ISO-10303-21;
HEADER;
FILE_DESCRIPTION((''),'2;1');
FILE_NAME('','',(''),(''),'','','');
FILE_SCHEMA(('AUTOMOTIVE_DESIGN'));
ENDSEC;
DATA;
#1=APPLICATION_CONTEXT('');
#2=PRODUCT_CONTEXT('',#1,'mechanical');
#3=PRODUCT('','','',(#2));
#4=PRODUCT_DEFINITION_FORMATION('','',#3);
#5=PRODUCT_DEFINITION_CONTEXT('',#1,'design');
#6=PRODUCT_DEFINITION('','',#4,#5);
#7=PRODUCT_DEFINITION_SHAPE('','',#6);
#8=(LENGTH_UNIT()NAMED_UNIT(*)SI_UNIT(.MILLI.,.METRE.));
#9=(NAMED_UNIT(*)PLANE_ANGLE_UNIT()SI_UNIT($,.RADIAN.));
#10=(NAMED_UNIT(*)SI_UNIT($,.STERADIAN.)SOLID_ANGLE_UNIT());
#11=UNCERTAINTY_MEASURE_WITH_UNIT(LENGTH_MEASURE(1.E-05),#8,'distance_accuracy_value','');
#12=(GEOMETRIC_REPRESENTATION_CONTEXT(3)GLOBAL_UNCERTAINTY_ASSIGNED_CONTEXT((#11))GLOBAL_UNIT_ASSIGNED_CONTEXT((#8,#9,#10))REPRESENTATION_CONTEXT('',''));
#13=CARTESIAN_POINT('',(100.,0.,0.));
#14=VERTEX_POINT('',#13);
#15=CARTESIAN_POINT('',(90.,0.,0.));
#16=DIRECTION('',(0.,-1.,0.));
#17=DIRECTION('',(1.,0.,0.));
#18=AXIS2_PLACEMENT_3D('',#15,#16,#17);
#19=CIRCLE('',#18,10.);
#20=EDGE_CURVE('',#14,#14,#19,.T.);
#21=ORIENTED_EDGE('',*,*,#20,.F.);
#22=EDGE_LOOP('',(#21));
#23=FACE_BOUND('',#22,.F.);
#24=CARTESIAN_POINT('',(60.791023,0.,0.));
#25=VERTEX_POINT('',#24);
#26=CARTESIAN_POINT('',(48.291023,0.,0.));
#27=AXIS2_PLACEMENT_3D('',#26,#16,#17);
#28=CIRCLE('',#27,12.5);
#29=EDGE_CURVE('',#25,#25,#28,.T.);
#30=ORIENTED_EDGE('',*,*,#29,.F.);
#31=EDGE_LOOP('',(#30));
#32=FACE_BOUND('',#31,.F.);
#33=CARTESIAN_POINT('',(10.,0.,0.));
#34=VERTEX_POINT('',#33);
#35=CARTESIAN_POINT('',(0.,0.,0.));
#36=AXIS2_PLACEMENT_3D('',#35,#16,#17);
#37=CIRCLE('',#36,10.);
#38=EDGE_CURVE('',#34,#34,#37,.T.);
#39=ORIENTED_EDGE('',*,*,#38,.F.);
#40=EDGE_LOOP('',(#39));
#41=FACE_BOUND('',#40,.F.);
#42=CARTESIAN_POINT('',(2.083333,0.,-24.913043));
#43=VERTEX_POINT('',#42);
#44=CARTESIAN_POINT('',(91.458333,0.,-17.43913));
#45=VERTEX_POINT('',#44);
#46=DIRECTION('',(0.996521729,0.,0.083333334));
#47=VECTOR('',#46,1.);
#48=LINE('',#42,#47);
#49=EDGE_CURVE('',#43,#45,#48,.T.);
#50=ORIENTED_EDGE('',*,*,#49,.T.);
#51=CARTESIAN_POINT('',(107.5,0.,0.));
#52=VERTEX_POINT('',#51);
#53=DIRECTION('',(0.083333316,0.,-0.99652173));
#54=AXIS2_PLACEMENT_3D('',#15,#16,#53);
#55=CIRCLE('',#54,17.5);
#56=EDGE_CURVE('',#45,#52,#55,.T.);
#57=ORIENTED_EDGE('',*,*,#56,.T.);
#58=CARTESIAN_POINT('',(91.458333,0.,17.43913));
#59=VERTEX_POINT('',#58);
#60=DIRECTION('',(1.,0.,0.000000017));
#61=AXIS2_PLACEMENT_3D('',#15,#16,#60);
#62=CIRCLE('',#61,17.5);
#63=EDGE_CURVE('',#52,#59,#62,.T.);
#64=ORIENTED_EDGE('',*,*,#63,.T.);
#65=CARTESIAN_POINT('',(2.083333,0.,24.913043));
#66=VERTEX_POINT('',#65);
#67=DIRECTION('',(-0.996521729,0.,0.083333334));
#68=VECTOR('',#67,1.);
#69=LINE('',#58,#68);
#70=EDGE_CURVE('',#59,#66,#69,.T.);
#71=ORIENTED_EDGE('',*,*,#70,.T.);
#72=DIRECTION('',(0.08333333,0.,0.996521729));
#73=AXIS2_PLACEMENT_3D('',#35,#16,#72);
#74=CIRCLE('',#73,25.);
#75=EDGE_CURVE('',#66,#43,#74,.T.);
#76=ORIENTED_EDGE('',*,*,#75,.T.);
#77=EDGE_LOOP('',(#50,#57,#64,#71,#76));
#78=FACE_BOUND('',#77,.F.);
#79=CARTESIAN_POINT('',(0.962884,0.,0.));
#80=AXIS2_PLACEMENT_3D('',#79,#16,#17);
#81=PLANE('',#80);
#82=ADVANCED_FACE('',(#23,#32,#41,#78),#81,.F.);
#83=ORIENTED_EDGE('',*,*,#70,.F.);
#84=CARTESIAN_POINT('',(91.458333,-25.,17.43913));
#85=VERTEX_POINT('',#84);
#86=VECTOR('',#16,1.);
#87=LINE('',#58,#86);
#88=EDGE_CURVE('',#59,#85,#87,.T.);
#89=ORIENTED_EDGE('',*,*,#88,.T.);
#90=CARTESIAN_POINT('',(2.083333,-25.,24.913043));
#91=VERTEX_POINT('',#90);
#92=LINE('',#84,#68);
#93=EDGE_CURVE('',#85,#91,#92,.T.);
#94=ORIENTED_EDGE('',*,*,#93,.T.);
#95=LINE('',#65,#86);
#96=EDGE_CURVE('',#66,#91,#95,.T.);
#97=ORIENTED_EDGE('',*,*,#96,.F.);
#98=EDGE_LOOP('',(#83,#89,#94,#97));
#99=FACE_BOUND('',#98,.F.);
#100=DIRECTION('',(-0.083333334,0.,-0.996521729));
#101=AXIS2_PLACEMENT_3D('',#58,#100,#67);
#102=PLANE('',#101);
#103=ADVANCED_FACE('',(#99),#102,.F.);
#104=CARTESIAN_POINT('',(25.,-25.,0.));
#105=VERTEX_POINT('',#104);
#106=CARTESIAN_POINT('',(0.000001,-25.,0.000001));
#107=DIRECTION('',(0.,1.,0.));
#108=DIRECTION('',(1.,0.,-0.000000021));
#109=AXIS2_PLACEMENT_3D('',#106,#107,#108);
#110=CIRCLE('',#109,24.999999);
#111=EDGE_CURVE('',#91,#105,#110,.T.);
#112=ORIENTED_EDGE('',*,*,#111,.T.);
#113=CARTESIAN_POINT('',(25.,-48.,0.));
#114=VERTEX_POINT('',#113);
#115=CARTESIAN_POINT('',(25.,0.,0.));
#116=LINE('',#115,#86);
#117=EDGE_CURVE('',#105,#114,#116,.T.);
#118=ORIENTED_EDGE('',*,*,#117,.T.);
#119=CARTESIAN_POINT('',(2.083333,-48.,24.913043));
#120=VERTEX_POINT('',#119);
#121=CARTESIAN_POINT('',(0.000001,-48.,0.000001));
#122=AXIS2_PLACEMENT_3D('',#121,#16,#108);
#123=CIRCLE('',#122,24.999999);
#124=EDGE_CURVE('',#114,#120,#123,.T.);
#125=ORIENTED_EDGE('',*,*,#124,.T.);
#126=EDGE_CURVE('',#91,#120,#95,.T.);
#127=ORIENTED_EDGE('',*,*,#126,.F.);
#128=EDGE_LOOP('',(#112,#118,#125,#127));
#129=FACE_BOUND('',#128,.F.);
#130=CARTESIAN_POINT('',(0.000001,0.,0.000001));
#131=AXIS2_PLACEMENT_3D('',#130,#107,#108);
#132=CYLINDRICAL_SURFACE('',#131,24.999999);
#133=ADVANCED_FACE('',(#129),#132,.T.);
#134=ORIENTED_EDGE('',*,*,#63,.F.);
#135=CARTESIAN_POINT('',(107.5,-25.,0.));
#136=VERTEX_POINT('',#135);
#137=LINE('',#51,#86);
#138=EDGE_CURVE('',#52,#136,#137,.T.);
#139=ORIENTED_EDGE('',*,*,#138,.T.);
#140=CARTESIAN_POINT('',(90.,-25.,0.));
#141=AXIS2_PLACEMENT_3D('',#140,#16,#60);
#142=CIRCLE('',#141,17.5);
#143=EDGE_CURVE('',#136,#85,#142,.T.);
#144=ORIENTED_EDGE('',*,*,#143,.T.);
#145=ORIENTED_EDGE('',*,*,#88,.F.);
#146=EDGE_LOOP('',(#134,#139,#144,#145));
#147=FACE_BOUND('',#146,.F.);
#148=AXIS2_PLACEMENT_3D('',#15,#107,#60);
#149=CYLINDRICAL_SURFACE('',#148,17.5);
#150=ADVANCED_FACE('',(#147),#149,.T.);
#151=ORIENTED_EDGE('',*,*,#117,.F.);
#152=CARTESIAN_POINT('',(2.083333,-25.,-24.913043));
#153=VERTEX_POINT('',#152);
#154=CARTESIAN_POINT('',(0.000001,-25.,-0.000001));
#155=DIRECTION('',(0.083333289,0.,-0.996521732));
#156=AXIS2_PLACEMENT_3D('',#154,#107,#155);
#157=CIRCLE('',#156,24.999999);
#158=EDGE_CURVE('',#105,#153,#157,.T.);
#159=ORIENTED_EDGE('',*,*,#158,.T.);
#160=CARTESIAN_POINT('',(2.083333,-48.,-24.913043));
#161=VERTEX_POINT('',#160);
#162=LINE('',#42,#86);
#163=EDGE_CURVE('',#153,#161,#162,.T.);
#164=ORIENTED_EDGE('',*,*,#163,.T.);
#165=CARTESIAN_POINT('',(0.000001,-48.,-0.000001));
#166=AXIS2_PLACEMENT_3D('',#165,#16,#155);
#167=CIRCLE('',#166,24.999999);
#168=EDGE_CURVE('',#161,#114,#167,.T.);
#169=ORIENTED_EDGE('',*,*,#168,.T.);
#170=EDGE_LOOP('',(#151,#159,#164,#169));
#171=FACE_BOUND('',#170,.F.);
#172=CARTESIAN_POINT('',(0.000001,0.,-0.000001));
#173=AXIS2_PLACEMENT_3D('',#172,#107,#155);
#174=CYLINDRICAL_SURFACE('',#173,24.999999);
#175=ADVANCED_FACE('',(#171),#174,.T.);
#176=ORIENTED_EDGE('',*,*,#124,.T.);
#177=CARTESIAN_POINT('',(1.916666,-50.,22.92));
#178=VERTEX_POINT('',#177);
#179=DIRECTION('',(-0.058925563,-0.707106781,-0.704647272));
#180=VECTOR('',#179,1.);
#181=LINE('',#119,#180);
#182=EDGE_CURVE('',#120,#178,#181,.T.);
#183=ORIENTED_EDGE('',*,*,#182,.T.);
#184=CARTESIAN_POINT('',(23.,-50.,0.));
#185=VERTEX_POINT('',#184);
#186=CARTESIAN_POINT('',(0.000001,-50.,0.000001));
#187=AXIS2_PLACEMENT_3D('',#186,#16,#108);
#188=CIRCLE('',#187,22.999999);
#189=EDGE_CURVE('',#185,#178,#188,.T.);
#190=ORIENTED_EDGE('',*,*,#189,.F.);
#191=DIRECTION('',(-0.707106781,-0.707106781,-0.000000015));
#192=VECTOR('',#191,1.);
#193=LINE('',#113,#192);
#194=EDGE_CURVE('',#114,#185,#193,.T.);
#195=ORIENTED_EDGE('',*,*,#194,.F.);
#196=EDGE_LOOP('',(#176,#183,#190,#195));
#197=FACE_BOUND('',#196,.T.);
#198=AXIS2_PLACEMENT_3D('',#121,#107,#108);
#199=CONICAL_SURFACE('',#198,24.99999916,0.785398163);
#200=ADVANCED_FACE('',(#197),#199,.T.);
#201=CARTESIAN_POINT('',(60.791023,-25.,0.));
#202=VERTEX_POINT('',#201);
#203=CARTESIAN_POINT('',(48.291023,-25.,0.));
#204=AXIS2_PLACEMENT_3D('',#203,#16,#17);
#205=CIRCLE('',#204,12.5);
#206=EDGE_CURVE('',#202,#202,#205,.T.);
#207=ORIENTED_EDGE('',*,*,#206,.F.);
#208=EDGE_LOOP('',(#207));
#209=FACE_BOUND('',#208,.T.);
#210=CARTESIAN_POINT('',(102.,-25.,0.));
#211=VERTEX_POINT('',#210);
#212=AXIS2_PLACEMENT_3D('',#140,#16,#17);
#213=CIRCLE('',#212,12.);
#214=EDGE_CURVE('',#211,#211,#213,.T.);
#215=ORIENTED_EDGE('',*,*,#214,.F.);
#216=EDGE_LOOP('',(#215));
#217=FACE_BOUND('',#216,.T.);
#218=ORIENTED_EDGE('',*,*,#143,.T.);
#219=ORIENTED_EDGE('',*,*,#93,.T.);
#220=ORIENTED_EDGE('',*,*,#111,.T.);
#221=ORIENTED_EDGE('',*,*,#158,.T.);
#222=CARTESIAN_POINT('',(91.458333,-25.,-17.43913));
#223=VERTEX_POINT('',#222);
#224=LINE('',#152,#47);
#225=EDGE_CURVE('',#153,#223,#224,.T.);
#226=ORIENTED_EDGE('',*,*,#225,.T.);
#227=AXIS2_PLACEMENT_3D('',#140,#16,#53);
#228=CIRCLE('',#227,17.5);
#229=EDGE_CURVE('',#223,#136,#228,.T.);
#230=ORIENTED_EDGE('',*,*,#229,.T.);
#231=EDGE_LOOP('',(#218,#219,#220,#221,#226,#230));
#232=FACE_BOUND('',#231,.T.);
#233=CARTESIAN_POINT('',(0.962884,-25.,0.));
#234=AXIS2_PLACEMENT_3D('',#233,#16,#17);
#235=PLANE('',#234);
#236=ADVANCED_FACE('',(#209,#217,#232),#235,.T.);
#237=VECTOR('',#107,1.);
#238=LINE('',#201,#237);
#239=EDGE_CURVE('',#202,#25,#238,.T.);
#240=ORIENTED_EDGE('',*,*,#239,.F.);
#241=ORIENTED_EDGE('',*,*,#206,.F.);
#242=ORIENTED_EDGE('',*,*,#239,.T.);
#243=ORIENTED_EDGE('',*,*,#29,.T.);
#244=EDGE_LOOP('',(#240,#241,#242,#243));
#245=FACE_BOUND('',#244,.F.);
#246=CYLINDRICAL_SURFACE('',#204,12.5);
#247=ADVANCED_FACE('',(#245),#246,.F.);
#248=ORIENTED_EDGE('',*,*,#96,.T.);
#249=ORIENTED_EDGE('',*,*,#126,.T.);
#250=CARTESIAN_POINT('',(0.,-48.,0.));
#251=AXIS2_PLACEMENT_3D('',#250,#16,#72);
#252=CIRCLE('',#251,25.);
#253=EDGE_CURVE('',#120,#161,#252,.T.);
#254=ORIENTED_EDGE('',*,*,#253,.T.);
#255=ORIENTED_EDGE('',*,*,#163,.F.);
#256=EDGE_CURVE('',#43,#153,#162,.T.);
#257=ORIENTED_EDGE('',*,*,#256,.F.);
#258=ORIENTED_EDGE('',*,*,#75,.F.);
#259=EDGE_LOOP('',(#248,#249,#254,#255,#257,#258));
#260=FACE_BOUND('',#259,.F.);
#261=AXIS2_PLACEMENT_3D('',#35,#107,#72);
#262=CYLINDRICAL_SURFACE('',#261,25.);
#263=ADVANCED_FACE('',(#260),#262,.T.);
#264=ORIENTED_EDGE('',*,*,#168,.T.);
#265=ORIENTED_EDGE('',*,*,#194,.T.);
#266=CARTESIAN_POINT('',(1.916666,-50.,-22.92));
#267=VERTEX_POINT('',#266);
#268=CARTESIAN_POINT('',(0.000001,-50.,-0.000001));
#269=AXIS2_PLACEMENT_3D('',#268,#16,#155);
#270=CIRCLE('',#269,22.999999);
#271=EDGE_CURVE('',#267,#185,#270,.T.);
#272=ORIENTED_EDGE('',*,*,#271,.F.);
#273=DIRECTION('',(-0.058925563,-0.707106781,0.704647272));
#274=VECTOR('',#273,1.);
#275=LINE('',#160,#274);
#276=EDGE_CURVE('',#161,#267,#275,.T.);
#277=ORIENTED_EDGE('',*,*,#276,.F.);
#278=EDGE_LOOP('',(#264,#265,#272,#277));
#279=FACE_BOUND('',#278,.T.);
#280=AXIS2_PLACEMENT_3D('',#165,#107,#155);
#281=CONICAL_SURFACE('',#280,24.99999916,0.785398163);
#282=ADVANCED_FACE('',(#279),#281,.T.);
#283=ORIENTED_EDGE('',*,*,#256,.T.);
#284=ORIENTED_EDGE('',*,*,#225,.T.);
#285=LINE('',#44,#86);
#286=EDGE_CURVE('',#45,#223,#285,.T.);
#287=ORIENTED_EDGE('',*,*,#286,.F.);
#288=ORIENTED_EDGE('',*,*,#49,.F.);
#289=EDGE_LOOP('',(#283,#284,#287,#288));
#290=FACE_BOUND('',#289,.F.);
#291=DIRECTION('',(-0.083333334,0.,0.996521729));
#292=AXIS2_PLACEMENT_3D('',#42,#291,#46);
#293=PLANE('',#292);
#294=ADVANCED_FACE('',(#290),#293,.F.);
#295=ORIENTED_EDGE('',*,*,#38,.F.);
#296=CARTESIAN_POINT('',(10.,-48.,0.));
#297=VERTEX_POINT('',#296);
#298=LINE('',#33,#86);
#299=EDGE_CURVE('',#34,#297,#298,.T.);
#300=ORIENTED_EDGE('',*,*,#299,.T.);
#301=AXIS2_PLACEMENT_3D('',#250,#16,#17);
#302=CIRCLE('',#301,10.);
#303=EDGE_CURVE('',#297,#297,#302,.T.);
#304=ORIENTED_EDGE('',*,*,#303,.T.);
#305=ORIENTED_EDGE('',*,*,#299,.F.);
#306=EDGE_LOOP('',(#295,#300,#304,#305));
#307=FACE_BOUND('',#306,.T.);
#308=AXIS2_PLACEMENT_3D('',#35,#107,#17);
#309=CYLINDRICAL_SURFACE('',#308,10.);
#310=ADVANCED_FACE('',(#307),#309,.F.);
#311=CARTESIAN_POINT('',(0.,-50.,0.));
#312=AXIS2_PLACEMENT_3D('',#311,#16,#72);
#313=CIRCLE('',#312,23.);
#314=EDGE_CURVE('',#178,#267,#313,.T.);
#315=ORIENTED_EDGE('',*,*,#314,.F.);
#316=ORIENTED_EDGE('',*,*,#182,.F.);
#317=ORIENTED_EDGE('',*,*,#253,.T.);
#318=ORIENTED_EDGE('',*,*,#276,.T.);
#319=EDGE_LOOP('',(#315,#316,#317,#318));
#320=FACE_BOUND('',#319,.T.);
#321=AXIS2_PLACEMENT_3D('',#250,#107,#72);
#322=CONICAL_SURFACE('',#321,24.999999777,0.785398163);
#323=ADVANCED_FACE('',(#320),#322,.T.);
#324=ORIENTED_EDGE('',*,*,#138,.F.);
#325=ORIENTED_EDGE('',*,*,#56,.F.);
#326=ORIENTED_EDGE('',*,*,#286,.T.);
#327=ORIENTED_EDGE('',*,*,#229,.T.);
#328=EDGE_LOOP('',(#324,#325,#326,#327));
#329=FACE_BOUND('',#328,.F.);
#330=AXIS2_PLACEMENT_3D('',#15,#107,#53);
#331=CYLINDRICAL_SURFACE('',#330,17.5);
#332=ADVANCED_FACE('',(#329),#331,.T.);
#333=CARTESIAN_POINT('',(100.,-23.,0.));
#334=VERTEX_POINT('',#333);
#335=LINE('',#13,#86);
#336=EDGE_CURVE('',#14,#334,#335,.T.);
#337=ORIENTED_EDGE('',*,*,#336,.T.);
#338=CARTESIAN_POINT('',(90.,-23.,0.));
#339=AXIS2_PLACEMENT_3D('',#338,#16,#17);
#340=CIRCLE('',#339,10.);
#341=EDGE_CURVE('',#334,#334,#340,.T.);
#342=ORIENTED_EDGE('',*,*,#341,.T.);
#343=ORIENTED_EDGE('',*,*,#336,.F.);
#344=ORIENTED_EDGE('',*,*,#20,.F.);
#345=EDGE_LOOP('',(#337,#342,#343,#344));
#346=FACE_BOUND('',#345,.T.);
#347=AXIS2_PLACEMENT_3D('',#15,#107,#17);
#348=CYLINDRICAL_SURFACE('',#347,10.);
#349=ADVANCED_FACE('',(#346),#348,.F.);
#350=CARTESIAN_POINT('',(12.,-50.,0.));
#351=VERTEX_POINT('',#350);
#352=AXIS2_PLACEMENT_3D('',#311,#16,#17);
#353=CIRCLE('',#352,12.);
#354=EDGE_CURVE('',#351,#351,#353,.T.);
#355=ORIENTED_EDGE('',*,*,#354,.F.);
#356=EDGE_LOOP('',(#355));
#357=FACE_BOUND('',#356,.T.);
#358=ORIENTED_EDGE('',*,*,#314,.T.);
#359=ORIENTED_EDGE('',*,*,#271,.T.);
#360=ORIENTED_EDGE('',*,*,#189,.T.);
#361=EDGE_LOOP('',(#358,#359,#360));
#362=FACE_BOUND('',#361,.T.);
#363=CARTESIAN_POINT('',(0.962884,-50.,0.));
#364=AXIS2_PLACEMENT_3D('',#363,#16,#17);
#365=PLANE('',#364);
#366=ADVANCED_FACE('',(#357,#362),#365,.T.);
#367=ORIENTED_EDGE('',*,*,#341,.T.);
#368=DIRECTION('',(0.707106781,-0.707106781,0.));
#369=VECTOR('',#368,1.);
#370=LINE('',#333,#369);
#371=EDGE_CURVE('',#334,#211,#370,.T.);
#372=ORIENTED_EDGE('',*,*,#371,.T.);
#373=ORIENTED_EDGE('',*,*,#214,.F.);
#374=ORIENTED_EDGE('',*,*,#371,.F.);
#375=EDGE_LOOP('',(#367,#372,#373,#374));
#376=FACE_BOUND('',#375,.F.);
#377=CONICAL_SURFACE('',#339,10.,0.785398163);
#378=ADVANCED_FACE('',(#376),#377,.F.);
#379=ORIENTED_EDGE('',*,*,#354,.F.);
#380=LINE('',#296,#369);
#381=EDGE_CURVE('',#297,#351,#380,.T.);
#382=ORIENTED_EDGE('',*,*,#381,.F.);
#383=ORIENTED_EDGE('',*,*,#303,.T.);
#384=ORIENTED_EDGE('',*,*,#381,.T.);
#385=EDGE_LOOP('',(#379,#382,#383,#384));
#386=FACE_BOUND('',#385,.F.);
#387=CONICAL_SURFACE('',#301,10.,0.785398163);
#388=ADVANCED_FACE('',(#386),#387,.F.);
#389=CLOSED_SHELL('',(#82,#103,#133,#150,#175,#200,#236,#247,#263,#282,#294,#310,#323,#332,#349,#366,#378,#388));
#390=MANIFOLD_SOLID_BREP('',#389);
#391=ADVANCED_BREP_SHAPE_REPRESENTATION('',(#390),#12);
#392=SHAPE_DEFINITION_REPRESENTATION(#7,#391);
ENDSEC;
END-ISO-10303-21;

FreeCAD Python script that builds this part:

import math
import FreeCAD as App
import Part
import Sketcher

V = App.Vector
Q = App.Units.Quantity


def edges_at(feature, points):
    """Names of the edges that pass closest to the given points."""
    edges = feature.Shape.Edges
    near = lambda p: min(range(len(edges)), key=lambda i: edges[i].distToShape(Part.Vertex(*p))[0])
    return sorted({f"Edge{near(p) + 1}" for p in points})

doc = App.newDocument("Part")
body = doc.addObject("PartDesign::Body", "Body")

sketch1 = body.newObject("Sketcher::SketchObject", "Sketch")
sketch1.AttachmentSupport = (doc.getObject("XZ_Plane"), [""])
sketch1.MapMode = "FlatFace"
sketch1.addGeometry([
    Part.ArcOfCircle(Part.Circle(V(0, 0, 0), V(0, 0, 1), 25), math.radians(85.219808), math.radians(274.780192)),
    Part.LineSegment(V(2.083333, -24.913043, 0), V(91.458333, -17.43913, 0)),
    Part.ArcOfCircle(Part.Circle(V(90, 0, 0), V(0, 0, 1), 17.5), math.radians(-85.219809), math.radians(-0.000001)),
    Part.ArcOfCircle(Part.Circle(V(90, 0, 0), V(0, 0, 1), 17.5), math.radians(0.000001), math.radians(85.219809)),
    Part.LineSegment(V(91.458333, 17.43913, 0), V(2.083333, 24.913043, 0)),
    Part.Circle(V(0, 0, 0), V(0, 0, 1), 10),
    Part.Circle(V(90, 0, 0), V(0, 0, 1), 10),
], False)
sketch1.addConstraint([
    Sketcher.Constraint("Tangent", 0, 2, 1, 1),
    Sketcher.Constraint("Tangent", 1, 2, 2, 1),
    Sketcher.Constraint("Tangent", 2, 2, 3, 1),
    Sketcher.Constraint("Tangent", 3, 2, 4, 1),
    Sketcher.Constraint("Tangent", 4, 2, 0, 1),
    Sketcher.Constraint("Coincident", 0, 3, -1, 1),
    Sketcher.Constraint("Coincident", 5, 3, -1, 1),
    Sketcher.Constraint("Coincident", 6, 3, 2, 3),
    Sketcher.Constraint("Equal", 2, 3),
    Sketcher.Constraint("Equal", 5, 6),
    Sketcher.Constraint("PointOnObject", 2, 3, -1),
    Sketcher.Constraint("PointOnObject", 2, 2, -1),
    Sketcher.Constraint("Diameter", 5, Q("20 mm")),
    Sketcher.Constraint("Radius", 0, Q("25 mm")),
    Sketcher.Constraint("Radius", 2, Q("17.5 mm")),
    Sketcher.Constraint("DistanceX", -1, 1, 2, 3, Q("90 mm")),
])
pad1 = body.newObject("PartDesign::Pad", "Pad")
pad1.Profile = sketch1
pad1.Length = 25

sketch2 = body.newObject("Sketcher::SketchObject", "Sketch001")
sketch2.AttachmentSupport = (doc.getObject("XZ_Plane"), [""])
sketch2.MapMode = "FlatFace"
sketch2.addGeometry([
    Part.ArcOfCircle(Part.Circle(V(0.000001, -0.000001, 0), V(0, 0, 1), 24.999999), math.radians(-85.219811), math.radians(0.000001)),
    Part.ArcOfCircle(Part.Circle(V(0.000001, 0.000001, 0), V(0, 0, 1), 24.999999), math.radians(-0.000001), math.radians(85.219811)),
    Part.ArcOfCircle(Part.Circle(V(0, 0, 0), V(0, 0, 1), 25), math.radians(85.219808), math.radians(274.780192)),
    Part.Circle(V(0, 0, 0), V(0, 0, 1), 10),
], False)
sketch2.addConstraint([
    Sketcher.Constraint("Tangent", 0, 2, 1, 1),
    Sketcher.Constraint("Tangent", 1, 2, 2, 1),
    Sketcher.Constraint("Tangent", 2, 2, 0, 1),
    Sketcher.Constraint("Coincident", 0, 3, -1, 1),
    Sketcher.Constraint("Coincident", 3, 3, -1, 1),
    Sketcher.Constraint("PointOnObject", 0, 2, -1),
    Sketcher.Constraint("Vertical", 1, 2, 2, 2),
    Sketcher.Constraint("Diameter", 3, Q("20 mm")),
    Sketcher.Constraint("Radius", 0, Q("24.999999 mm")),
    Sketcher.Constraint("DistanceX", -1, 1, 1, 2, Q("2.083333 mm")),
])
pad2 = body.newObject("PartDesign::Pad", "Pad001")
pad2.Profile = sketch2
pad2.Length = 50
doc.recompute()

chamfer = body.newObject("PartDesign::Chamfer", "Chamfer")
chamfer.Base = (pad2, edges_at(pad2, [(-25, -50, 0), (-10, -50, 0), (80, -25, 0)]))
chamfer.Size = 2

sketch3 = body.newObject("Sketcher::SketchObject", "Sketch002")
sketch3.AttachmentSupport = (doc.getObject("XZ_Plane"), [""])
sketch3.MapMode = "FlatFace"
sketch3.AttachmentOffset = App.Placement(V(0, 0, 25), App.Rotation())
sketch3.addGeometry(Part.Circle(V(48.291023, 0, 0), V(0, 0, 1), 12.5), False)
sketch3.addConstraint([
    Sketcher.Constraint("PointOnObject", 0, 3, -1),
    Sketcher.Constraint("Diameter", 0, Q("25 mm")),
    Sketcher.Constraint("DistanceX", -1, 1, 0, 3, Q("48.291023 mm")),
])
pocket1 = body.newObject("PartDesign::Pocket", "Pocket")
pocket1.Profile = sketch3
pocket1.Type = "ThroughAll"

doc.recompute()
